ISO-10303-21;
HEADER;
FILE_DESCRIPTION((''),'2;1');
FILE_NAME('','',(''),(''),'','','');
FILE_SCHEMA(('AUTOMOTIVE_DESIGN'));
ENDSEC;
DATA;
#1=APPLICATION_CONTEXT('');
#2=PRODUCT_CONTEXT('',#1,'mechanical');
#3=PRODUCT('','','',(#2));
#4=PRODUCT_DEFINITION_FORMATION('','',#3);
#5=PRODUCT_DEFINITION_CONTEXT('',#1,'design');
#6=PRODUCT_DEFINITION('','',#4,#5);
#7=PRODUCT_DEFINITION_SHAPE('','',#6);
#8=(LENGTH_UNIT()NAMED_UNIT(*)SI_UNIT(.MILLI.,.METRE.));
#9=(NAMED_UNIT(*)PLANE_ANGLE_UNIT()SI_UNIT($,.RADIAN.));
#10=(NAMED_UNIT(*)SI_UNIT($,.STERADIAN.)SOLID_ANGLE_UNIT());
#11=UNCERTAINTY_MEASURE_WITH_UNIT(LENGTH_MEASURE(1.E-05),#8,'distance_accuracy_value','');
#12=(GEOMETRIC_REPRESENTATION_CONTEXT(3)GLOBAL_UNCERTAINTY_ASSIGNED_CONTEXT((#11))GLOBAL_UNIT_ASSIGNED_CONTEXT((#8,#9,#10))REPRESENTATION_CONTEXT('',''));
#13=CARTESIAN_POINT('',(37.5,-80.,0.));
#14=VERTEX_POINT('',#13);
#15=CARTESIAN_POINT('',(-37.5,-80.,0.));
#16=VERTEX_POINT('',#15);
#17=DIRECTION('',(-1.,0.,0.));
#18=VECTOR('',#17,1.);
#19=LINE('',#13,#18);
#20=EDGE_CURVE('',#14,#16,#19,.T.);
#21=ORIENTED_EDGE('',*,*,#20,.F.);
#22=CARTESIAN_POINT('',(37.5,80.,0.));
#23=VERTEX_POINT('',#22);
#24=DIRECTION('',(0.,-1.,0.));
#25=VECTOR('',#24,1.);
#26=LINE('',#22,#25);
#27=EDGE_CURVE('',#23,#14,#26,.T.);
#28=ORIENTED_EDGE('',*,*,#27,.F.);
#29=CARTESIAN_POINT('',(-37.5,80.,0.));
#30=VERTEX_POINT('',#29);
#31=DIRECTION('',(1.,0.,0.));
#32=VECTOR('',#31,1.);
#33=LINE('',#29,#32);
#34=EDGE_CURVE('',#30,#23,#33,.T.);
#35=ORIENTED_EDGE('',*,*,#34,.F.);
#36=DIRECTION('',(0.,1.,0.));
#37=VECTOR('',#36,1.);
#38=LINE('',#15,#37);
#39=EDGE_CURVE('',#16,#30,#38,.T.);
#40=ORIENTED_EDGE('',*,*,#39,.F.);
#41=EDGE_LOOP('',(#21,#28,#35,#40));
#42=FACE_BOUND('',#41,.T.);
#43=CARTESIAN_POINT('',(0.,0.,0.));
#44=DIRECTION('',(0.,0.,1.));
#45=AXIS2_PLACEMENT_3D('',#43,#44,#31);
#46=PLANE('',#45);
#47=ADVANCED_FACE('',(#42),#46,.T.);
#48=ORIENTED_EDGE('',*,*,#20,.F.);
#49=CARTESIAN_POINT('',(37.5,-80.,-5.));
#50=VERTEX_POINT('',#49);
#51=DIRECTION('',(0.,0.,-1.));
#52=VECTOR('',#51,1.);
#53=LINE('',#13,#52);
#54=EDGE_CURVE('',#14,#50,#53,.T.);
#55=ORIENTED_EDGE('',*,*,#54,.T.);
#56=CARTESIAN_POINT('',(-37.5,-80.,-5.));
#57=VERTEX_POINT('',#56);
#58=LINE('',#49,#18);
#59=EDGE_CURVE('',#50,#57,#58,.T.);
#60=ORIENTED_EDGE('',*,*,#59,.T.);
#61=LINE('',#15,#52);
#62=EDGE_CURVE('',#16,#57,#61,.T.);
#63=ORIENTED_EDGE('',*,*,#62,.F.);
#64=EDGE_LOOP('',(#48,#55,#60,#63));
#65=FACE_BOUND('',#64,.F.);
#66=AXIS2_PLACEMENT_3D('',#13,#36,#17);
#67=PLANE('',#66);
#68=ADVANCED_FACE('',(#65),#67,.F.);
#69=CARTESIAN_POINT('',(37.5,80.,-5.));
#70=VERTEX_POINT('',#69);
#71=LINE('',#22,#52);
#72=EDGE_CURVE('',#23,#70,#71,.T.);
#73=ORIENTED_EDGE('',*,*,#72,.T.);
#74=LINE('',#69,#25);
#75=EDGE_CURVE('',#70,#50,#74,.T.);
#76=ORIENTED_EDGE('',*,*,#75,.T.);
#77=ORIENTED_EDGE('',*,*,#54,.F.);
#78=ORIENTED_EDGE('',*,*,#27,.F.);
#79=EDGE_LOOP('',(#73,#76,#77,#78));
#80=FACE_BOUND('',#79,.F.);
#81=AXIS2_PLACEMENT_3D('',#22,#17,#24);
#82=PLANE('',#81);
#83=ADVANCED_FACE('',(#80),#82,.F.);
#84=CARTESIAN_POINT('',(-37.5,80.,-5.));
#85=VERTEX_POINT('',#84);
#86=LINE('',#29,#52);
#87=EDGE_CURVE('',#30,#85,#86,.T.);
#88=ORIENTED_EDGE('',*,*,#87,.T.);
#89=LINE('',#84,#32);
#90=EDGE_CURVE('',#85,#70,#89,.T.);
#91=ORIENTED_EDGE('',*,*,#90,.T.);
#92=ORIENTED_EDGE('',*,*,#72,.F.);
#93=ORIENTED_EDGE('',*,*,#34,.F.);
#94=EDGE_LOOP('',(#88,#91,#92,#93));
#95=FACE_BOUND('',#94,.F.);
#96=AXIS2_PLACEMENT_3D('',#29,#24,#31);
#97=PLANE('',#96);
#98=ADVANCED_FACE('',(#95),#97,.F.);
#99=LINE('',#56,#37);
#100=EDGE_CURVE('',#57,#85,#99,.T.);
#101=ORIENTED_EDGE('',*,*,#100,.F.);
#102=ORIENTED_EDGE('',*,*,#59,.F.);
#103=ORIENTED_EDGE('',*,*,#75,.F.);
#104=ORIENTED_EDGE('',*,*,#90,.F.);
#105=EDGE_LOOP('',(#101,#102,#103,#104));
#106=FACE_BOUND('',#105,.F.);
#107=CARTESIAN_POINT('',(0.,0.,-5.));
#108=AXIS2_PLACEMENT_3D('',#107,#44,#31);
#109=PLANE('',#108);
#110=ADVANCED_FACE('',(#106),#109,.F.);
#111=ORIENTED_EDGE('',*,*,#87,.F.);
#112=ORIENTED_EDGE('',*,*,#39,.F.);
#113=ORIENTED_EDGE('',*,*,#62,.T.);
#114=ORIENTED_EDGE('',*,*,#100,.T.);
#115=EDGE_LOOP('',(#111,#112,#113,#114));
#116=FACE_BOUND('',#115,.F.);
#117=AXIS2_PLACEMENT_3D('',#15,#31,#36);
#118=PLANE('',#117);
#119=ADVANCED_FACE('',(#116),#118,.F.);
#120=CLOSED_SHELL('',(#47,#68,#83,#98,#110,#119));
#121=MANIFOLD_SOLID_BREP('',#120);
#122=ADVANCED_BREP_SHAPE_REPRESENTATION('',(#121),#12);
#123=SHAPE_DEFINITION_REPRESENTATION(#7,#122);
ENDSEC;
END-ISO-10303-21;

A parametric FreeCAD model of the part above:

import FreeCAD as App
import Part
import Sketcher

V = App.Vector


def add_polygon(sketch, points):
    """Adds a closed chain of lines whose ends are joined by coincident constraints."""
    first, n = sketch.GeometryCount, len(points)
    for a, b in zip(points, points[1:] + points[:1]):
        sketch.addGeometry(Part.LineSegment(App.Vector(*a, 0), App.Vector(*b, 0)), False)
    for i in range(n):
        sketch.addConstraint(Sketcher.Constraint("Coincident", first + i, 2, first + (i + 1) % n, 1))

doc = App.newDocument("Part")
params = doc.addObject("Spreadsheet::Sheet", "Params")
for row, (alias, value) in enumerate([
    ("sketch1_width", "75 mm"),
    ("sketch1_height", "160 mm"),
    ("pad1_length", "5 mm"),
], start=1):
    params.set(f"A{row}", alias)
    params.set(f"B{row}", "=" + value)
    params.setAlias(f"B{row}", alias)

body = doc.addObject("PartDesign::Body", "Body")

sketch1 = body.newObject("Sketcher::SketchObject", "Sketch")
sketch1.AttachmentSupport = (doc.getObject("XY_Plane"), [""])
sketch1.MapMode = "FlatFace"
add_polygon(sketch1, [(-38, -80), (38, -80), (38, 80), (-38, 80)])
sketch1.addConstraint(Sketcher.Constraint("Horizontal", 0))
sketch1.addConstraint(Sketcher.Constraint("Vertical", 1))
sketch1.addConstraint(Sketcher.Constraint("Horizontal", 2))
sketch1.addConstraint(Sketcher.Constraint("Vertical", 3))
sketch1.addConstraint(Sketcher.Constraint("Symmetric", 0, 2, 2, 2, -1, 1))
sketch1.addConstraint(Sketcher.Constraint("DistanceX", 0, 1, 0, 2, 75.0))
sketch1.addConstraint(Sketcher.Constraint("DistanceY", 1, 1, 1, 2, 160.0))
sketch1.setExpression("Constraints[9]", "Params.sketch1_width")
sketch1.setExpression("Constraints[10]", "Params.sketch1_height")
pad1 = body.newObject("PartDesign::Pad", "Pad")
pad1.Profile = sketch1
pad1.setExpression("Length", "Params.pad1_length")
pad1.Reversed = True

doc.recompute()
